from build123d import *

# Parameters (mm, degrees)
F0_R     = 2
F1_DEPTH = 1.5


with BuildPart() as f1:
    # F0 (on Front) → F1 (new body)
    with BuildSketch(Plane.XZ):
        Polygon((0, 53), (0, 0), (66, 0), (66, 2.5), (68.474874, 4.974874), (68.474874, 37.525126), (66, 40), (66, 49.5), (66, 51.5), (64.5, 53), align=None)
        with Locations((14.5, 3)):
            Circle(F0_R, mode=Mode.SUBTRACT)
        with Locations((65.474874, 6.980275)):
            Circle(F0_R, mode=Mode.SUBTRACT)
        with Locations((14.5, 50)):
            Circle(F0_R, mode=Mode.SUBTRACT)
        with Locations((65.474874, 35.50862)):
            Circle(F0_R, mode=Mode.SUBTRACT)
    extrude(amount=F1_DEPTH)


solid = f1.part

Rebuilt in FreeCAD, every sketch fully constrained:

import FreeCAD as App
import Part
import Sketcher
Q = App.Units.Quantity

doc = App.newDocument("Part")
body = doc.addObject("PartDesign::Body", "Body")

sketch1 = doc.addObject("Sketcher::SketchObject", "Sketch")
body.addObject(sketch1)
sketch1.AttachmentSupport = (doc.XZ_Plane, [""])
sketch1.MapMode = "FlatFace"
sketch1.addGeometry(Part.LineSegment(App.Vector(0, 53, 0), App.Vector(0, 0, 0)), False)
sketch1.addGeometry(Part.LineSegment(App.Vector(0, 0, 0), App.Vector(66, 0, 0)), False)
sketch1.addGeometry(Part.LineSegment(App.Vector(66, 0, 0), App.Vector(66, 2.5, 0)), False)
sketch1.addGeometry(Part.LineSegment(App.Vector(66, 2.5, 0), App.Vector(68.5, 5, 0)), False)
sketch1.addGeometry(Part.LineSegment(App.Vector(68.5, 5, 0), App.Vector(68.5, 37.5, 0)), False)
sketch1.addGeometry(Part.LineSegment(App.Vector(68.5, 37.5, 0), App.Vector(66, 40, 0)), False)
sketch1.addGeometry(Part.LineSegment(App.Vector(66, 40, 0), App.Vector(66, 51.5, 0)), False)
sketch1.addGeometry(Part.LineSegment(App.Vector(66, 51.5, 0), App.Vector(64.5, 53, 0)), False)
sketch1.addGeometry(Part.LineSegment(App.Vector(64.5, 53, 0), App.Vector(0, 53, 0)), False)
sketch1.addGeometry(Part.Circle(App.Vector(14.5, 3, 0), App.Vector(0, 0, 1), 2), False)
sketch1.addGeometry(Part.Circle(App.Vector(65.5, 7, 0), App.Vector(0, 0, 1), 2), False)
sketch1.addGeometry(Part.Circle(App.Vector(14.5, 50, 0), App.Vector(0, 0, 1), 2), False)
sketch1.addGeometry(Part.Circle(App.Vector(65.5, 35.5, 0), App.Vector(0, 0, 1), 2), False)
sketch1.addConstraint(Sketcher.Constraint("Coincident", 0, 2, 1, 1))
sketch1.addConstraint(Sketcher.Constraint("Coincident", 1, 2, 2, 1))
sketch1.addConstraint(Sketcher.Constraint("Coincident", 2, 2, 3, 1))
sketch1.addConstraint(Sketcher.Constraint("Coincident", 3, 2, 4, 1))
sketch1.addConstraint(Sketcher.Constraint("Coincident", 4, 2, 5, 1))
sketch1.addConstraint(Sketcher.Constraint("Coincident", 5, 2, 6, 1))
sketch1.addConstraint(Sketcher.Constraint("Coincident", 6, 2, 7, 1))
sketch1.addConstraint(Sketcher.Constraint("Coincident", 7, 2, 8, 1))
sketch1.addConstraint(Sketcher.Constraint("Coincident", 8, 2, 0, 1))
sketch1.addConstraint(Sketcher.Constraint("Vertical", 0))
sketch1.addConstraint(Sketcher.Constraint("Horizontal", 1))
sketch1.addConstraint(Sketcher.Constraint("Vertical", 2))
sketch1.addConstraint(Sketcher.Constraint("Vertical", 4))
sketch1.addConstraint(Sketcher.Constraint("Vertical", 6))
sketch1.addConstraint(Sketcher.Constraint("Horizontal", 8))
sketch1.addConstraint(Sketcher.Constraint("Coincident", 0, 2, -1, 1))
sketch1.addConstraint(Sketcher.Constraint("Equal", 9, 10))
sketch1.addConstraint(Sketcher.Constraint("Equal", 10, 11))
sketch1.addConstraint(Sketcher.Constraint("Equal", 11, 12))
sketch1.addConstraint(Sketcher.Constraint("Perpendicular", 3, 5))
sketch1.addConstraint(Sketcher.Constraint("Parallel", 5, 7))
sketch1.addConstraint(Sketcher.Constraint("Vertical", 9, 3, 11, 3))
sketch1.addConstraint(Sketcher.Constraint("Vertical", 10, 3, 12, 3))
sketch1.addConstraint(Sketcher.Constraint("Vertical", 2, 2, 5, 2))
sketch1.addConstraint(Sketcher.Constraint("Equal", 3, 5))
sketch1.addConstraint(Sketcher.Constraint("Diameter", 9, Q("4 mm")))
sketch1.addConstraint(Sketcher.Constraint("DistanceX", 1, 1, 1, 2, Q("66 mm")))
sketch1.addConstraint(Sketcher.Constraint("DistanceY", 0, 2, 0, 1, Q("53 mm")))
sketch1.addConstraint(Sketcher.Constraint("DistanceX", 8, 2, 8, 1, Q("64.5 mm")))
sketch1.addConstraint(Sketcher.Constraint("DistanceY", 2, 1, 2, 2, Q("2.5 mm")))
sketch1.addConstraint(Sketcher.Constraint("DistanceY", 6, 1, 6, 2, Q("11.5 mm")))
sketch1.addConstraint(Sketcher.Constraint("DistanceY", -1, 1, 9, 3, Q("3 mm")))
sketch1.addConstraint(Sketcher.Constraint("DistanceY", -1, 1, 11, 3, Q("50 mm")))
sketch1.addConstraint(Sketcher.Constraint("DistanceX", 10, 3, 3, 2, Q("3 mm")))
sketch1.addConstraint(Sketcher.Constraint("Distance", 3, Q("3.5 mm")))
sketch1.addConstraint(Sketcher.Constraint("DistanceX", -1, 1, 9, 3, Q("14.5 mm")))
sketch1.addConstraint(Sketcher.Constraint("DistanceY", 3, 2, 10, 3, Q("2.005401 mm")))
sketch1.addConstraint(Sketcher.Constraint("DistanceY", -1, 1, 12, 3, Q("35.50862 mm")))
pad1 = doc.addObject("PartDesign::Pad", "Pad")
body.addObject(pad1)
pad1.Profile = sketch1
pad1.Length = 1.5

doc.recompute()
